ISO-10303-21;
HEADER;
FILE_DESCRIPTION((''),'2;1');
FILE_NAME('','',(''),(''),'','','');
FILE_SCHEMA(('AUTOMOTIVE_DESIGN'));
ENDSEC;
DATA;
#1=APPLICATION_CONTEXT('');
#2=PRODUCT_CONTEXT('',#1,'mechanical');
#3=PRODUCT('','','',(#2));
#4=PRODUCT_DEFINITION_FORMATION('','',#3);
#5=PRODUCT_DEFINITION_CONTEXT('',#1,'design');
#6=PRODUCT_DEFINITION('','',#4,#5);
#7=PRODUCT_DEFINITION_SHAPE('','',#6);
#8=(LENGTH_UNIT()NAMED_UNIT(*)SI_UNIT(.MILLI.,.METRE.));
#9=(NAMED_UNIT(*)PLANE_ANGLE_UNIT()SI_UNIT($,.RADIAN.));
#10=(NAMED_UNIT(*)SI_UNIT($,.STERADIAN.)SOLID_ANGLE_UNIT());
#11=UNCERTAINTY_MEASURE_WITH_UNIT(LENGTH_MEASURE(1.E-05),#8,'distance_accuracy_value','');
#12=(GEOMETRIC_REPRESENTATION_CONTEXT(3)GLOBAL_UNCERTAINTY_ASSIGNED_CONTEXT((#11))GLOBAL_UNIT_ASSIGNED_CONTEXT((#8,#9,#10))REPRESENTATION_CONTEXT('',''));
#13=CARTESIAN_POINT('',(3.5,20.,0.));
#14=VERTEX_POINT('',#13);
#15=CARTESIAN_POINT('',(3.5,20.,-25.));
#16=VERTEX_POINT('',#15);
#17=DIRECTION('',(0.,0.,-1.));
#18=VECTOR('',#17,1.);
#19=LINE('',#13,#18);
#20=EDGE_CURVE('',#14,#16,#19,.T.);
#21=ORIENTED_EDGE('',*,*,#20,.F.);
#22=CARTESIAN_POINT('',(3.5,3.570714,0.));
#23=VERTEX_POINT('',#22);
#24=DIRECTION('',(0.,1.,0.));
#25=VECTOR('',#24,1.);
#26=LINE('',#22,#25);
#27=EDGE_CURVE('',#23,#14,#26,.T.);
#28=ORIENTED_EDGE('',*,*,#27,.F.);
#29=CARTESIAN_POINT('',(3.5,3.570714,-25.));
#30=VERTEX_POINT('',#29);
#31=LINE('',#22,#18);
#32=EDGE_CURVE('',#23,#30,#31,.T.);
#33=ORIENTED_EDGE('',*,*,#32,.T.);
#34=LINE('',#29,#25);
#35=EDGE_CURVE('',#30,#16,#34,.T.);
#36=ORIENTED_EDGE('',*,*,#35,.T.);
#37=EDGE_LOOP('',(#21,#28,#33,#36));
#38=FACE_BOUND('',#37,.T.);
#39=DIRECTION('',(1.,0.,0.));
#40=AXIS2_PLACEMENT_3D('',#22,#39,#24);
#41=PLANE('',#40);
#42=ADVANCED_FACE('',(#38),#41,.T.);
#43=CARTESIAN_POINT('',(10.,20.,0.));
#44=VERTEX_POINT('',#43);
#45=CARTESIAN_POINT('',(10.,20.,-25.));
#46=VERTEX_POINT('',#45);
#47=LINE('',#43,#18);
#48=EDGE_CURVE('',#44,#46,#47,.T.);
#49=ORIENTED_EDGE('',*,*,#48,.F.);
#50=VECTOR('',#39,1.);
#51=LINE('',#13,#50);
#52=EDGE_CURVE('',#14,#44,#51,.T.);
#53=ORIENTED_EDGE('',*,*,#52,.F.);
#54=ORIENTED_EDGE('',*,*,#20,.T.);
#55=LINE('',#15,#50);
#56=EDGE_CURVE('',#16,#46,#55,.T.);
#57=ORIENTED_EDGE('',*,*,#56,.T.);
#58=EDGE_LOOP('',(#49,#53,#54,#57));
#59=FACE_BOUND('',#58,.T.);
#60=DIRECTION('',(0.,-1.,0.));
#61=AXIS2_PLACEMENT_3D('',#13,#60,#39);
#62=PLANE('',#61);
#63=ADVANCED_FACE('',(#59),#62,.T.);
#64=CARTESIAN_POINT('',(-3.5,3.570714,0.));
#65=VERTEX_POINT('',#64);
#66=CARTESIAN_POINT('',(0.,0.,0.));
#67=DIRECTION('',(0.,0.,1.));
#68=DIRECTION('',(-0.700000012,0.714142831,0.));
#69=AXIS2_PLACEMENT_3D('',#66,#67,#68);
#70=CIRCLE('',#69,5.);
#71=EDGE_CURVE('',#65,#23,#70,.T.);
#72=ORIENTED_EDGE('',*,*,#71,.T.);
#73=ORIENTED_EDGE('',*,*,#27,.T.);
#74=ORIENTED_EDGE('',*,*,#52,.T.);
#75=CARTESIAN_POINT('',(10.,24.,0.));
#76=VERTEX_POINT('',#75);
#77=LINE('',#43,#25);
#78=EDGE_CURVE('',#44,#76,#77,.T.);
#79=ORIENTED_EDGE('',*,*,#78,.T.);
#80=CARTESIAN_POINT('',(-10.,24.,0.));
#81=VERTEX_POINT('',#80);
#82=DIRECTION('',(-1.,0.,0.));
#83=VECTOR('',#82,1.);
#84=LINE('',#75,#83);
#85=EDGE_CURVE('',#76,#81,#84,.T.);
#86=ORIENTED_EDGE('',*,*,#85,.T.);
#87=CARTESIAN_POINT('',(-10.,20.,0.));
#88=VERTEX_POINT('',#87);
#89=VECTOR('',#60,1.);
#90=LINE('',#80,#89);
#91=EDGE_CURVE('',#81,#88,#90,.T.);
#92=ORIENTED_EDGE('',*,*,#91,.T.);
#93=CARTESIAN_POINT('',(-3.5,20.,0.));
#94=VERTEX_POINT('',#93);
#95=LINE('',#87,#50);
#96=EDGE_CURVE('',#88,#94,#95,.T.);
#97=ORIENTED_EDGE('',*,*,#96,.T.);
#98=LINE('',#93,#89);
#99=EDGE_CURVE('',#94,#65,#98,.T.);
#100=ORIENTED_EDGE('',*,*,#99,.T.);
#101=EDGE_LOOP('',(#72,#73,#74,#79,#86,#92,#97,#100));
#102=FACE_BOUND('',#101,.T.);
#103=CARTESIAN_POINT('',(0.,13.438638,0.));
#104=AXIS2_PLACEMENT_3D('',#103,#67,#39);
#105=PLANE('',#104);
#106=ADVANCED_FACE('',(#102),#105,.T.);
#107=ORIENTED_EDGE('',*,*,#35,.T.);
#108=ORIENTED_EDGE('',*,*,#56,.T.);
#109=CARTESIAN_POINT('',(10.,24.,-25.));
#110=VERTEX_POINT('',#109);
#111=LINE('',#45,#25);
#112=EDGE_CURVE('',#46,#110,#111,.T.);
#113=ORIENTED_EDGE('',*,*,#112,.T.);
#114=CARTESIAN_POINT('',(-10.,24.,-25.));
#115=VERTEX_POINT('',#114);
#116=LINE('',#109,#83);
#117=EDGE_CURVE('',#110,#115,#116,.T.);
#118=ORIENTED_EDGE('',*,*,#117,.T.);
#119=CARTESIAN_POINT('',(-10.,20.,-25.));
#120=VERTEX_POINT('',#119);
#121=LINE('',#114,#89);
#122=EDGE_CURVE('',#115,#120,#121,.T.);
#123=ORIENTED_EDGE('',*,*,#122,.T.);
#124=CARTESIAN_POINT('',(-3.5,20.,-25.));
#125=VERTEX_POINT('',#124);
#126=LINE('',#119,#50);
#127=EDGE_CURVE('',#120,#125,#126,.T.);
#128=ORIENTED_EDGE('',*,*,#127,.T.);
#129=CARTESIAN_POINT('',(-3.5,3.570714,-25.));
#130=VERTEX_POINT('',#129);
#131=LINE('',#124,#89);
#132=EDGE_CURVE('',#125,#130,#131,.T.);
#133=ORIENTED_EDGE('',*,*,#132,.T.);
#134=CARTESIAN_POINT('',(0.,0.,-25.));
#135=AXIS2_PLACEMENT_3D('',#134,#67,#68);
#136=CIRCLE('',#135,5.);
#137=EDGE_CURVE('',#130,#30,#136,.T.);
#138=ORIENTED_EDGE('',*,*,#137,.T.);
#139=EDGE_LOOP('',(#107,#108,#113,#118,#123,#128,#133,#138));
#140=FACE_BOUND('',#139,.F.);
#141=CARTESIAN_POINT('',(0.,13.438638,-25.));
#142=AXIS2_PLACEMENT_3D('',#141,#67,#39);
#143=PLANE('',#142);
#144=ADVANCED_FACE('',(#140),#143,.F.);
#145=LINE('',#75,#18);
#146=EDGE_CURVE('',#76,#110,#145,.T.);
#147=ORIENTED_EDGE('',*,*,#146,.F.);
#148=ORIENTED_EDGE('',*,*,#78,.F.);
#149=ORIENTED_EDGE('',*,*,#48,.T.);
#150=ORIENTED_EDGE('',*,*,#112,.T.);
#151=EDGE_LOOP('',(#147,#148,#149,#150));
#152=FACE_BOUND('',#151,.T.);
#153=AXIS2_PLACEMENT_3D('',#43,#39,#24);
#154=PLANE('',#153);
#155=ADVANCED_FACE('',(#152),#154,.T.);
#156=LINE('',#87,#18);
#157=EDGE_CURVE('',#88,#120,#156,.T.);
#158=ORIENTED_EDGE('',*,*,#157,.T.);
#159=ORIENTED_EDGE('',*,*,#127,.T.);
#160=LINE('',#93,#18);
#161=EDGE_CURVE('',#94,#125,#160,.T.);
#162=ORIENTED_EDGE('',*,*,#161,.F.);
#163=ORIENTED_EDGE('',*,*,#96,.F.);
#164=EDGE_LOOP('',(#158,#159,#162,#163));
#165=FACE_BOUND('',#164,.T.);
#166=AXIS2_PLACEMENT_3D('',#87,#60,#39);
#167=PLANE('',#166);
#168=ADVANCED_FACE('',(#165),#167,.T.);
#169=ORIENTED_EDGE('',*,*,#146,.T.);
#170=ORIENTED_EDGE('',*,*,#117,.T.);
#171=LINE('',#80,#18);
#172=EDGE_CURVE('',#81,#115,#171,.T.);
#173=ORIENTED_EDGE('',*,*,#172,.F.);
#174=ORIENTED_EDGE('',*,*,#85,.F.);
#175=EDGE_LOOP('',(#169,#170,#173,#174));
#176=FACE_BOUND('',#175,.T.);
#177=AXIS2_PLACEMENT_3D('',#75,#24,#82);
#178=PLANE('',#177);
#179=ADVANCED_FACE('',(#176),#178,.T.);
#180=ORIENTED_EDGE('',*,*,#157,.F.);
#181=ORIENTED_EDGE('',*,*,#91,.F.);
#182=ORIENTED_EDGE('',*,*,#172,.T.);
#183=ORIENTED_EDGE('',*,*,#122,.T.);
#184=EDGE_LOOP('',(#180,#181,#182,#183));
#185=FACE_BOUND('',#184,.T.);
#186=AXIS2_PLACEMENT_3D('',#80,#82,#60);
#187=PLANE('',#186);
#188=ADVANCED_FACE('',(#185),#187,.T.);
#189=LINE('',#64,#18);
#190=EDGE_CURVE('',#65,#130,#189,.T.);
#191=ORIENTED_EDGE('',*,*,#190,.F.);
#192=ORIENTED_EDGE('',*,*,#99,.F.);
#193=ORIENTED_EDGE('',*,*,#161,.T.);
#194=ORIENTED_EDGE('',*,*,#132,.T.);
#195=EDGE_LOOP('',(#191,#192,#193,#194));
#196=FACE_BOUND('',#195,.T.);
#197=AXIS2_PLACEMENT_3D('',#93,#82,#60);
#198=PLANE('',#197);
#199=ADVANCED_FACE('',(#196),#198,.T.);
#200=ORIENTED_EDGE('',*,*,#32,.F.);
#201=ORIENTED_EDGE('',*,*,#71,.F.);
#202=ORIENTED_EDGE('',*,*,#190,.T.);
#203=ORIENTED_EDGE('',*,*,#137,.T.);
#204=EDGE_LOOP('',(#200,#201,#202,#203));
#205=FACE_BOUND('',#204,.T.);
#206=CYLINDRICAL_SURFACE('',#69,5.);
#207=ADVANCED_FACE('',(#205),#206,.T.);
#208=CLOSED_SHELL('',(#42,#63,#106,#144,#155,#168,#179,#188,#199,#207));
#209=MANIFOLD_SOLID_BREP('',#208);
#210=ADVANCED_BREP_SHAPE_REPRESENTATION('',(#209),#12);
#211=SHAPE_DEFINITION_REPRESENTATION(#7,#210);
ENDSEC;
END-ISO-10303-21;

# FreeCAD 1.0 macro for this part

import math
import FreeCAD as App
import Part
import Sketcher

doc = App.newDocument("Part")
body = doc.addObject("PartDesign::Body", "Body")

sketch1 = body.newObject("Sketcher::SketchObject", "Sketch")
sketch1.AttachmentSupport = (doc.getObject("XY_Plane"), [""])
sketch1.MapMode = "FlatFace"
sketch1.addGeometry([
    Part.LineSegment(App.Vector(-3.5, 20, 0), App.Vector(-3.5, 3.6, 0)),
    Part.ArcOfCircle(Part.Circle(App.Vector(0, 0, 0), App.Vector(0, 0, 1), 5), math.radians(134), math.radians(406)),
    Part.LineSegment(App.Vector(3.5, 3.6, 0), App.Vector(3.5, 20, 0)),
    Part.LineSegment(App.Vector(3.5, 20, 0), App.Vector(10, 20, 0)),
    Part.LineSegment(App.Vector(10, 20, 0), App.Vector(10, 24, 0)),
    Part.LineSegment(App.Vector(10, 24, 0), App.Vector(-10, 24, 0)),
    Part.LineSegment(App.Vector(-10, 24, 0), App.Vector(-10, 20, 0)),
    Part.LineSegment(App.Vector(-10, 20, 0), App.Vector(-3.5, 20, 0)),
], False)
sketch1.addConstraint([
    Sketcher.Constraint("Coincident", 0, 2, 1, 1),
    Sketcher.Constraint("Coincident", 1, 2, 2, 1),
    Sketcher.Constraint("Coincident", 2, 2, 3, 1),
    Sketcher.Constraint("Coincident", 3, 2, 4, 1),
    Sketcher.Constraint("Coincident", 4, 2, 5, 1),
    Sketcher.Constraint("Coincident", 5, 2, 6, 1),
    Sketcher.Constraint("Coincident", 6, 2, 7, 1),
    Sketcher.Constraint("Coincident", 7, 2, 0, 1),
    Sketcher.Constraint("Vertical", 0),
    Sketcher.Constraint("Vertical", 2),
    Sketcher.Constraint("Horizontal", 3),
    Sketcher.Constraint("Vertical", 4),
    Sketcher.Constraint("Horizontal", 5),
    Sketcher.Constraint("Vertical", 6),
    Sketcher.Constraint("Horizontal", 7),
    Sketcher.Constraint("Coincident", 1, 3, -1, 1),
    Sketcher.Constraint("Symmetric", 3, 2, 6, 2, -2),
    Sketcher.Constraint("Horizontal", 0, 2, 1, 2),
    Sketcher.Constraint("Radius", 1, 5.0),
    Sketcher.Constraint("DistanceX", 5, 2, 5, 1, 20.0),
    Sketcher.Constraint("DistanceY", 4, 1, 4, 2, 4.0),
    Sketcher.Constraint("DistanceX", 3, 1, 3, 2, 6.5),
    Sketcher.Constraint("DistanceY", -1, 1, 2, 2, 20.0),
])
pad1 = body.newObject("PartDesign::Pad", "Pad")
pad1.Profile = sketch1
pad1.Length = 25
pad1.Reversed = True

doc.recompute()
